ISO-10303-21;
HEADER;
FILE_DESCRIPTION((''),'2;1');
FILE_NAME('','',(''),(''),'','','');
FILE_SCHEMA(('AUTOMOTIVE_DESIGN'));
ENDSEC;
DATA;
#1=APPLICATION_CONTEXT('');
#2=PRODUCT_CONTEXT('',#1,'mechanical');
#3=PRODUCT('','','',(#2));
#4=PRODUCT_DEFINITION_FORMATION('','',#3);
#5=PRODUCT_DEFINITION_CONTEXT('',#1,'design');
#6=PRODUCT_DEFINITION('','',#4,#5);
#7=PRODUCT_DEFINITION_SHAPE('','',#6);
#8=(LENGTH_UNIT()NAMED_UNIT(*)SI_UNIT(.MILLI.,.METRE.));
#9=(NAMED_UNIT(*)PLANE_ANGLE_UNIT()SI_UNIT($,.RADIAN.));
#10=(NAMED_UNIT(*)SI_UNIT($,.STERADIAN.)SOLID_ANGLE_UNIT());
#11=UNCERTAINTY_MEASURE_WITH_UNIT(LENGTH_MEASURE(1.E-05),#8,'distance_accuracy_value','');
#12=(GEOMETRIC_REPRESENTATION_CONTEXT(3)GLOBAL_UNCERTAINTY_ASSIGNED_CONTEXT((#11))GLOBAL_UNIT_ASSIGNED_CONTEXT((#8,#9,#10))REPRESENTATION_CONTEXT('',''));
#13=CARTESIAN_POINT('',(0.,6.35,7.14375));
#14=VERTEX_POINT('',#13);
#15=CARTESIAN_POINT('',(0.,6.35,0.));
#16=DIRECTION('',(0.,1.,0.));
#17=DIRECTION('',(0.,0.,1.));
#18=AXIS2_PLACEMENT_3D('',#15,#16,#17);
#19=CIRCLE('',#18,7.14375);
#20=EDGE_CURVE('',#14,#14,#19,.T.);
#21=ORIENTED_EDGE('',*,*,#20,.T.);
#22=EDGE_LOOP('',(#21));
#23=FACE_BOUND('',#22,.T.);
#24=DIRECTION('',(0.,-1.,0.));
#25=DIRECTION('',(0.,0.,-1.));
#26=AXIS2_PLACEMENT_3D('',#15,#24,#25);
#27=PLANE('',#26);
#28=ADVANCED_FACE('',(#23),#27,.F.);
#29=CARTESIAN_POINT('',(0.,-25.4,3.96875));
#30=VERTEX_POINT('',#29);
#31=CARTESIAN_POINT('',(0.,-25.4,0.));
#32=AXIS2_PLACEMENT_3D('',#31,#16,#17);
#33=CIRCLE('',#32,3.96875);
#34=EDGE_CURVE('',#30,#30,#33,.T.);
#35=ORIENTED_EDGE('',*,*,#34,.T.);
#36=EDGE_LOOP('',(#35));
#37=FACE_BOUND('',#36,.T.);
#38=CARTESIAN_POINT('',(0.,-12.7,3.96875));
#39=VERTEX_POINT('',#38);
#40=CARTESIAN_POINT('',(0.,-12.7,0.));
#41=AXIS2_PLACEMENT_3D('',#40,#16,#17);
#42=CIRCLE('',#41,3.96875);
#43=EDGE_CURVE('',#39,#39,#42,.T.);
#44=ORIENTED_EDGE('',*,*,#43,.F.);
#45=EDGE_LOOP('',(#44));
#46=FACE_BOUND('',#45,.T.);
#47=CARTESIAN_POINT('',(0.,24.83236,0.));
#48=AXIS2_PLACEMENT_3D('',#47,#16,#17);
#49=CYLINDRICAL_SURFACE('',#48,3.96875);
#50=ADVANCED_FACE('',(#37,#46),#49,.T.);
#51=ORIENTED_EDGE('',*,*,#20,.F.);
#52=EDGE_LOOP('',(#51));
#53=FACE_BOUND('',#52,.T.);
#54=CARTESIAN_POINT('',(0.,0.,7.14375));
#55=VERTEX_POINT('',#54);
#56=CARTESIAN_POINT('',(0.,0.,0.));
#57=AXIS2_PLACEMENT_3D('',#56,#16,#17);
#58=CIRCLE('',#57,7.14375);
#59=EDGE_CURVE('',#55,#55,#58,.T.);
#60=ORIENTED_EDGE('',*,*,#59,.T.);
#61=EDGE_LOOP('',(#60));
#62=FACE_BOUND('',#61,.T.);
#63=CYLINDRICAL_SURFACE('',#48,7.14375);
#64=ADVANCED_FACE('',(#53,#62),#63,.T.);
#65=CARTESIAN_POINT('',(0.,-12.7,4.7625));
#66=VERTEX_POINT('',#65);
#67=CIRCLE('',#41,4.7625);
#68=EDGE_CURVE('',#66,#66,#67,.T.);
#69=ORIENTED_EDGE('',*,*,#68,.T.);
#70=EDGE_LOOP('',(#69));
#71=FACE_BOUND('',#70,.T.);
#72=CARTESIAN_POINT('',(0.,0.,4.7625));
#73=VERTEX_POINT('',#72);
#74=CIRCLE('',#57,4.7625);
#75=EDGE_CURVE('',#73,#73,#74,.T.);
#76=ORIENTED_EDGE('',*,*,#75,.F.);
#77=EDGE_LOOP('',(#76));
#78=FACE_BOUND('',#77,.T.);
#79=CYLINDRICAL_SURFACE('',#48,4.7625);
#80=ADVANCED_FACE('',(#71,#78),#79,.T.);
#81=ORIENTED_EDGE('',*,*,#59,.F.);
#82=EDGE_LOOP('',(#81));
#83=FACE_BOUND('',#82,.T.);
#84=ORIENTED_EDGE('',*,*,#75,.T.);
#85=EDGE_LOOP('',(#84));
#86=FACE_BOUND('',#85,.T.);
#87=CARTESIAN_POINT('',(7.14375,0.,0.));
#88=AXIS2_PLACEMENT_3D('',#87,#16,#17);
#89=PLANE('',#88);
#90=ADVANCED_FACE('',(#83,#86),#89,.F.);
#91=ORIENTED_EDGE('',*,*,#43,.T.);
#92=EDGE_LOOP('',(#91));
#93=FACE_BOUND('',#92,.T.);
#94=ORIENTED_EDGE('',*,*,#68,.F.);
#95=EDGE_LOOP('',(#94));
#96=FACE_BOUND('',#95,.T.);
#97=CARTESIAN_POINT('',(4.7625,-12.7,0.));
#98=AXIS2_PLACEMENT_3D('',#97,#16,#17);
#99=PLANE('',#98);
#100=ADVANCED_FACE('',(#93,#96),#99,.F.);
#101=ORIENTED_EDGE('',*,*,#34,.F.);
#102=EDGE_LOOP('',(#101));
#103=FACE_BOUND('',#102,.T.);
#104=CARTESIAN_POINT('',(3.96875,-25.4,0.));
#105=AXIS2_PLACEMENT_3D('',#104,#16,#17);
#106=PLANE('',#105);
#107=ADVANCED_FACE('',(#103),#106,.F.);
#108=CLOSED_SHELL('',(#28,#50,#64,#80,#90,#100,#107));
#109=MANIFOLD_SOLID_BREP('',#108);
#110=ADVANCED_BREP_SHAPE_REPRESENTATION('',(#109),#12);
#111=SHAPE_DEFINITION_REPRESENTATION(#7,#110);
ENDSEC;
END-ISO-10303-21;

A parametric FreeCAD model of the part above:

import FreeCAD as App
import Part
import Sketcher
from FreeCAD import Vector
Q = App.Units.Quantity


def add_polygon(sketch, points):
    """Adds a closed chain of lines whose ends are joined by coincident constraints."""
    first, n = sketch.GeometryCount, len(points)
    for a, b in zip(points, points[1:] + points[:1]):
        sketch.addGeometry(Part.LineSegment(App.Vector(*a, 0), App.Vector(*b, 0)), False)
    for i in range(n):
        sketch.addConstraint(Sketcher.Constraint("Coincident", first + i, 2, first + (i + 1) % n, 1))

doc = App.newDocument("Part")
params = doc.addObject("Spreadsheet::Sheet", "Params")
for row, (alias, value) in enumerate([
    ("sketch1_height", "0.5 in"),
    ("sketch1_height2", "1.25 in"),
    ("sketch1_width", "0.28125 in"),
    ("sketch1_width2", "0.15625 in"),
    ("sketch1_width3", "0.03125 in"),
    ("revolution_angle", "360 deg"),
], start=1):
    params.set(f"A{row}", alias)
    params.set(f"B{row}", "=" + value)
    params.setAlias(f"B{row}", alias)

body = doc.addObject("PartDesign::Body", "Body")

# Sketch on XY plane
sketch1 = body.newObject("Sketcher::SketchObject", "Sketch")
sketch1.AttachmentSupport = (doc.getObject("XY_Plane"), [""])
sketch1.MapMode = "FlatFace"
add_polygon(sketch1, [(7.14375, 6.35), (0, 6.35), (0, -25.4), (3.96875, -25.4), (3.96875, -12.7), (4.7625, -12.7), (4.7625, 0), (7.14375, 0)])  # lines 0-7
sketch1.addConstraint([
    Sketcher.Constraint("Horizontal", 0),
    Sketcher.Constraint("Vertical", 1),
    Sketcher.Constraint("Horizontal", 2),
    Sketcher.Constraint("Vertical", 3),
    Sketcher.Constraint("Horizontal", 4),
    Sketcher.Constraint("Vertical", 5),
    Sketcher.Constraint("Horizontal", 6),
    Sketcher.Constraint("Vertical", 7),
    Sketcher.Constraint("PointOnObject", 0, 2, -2),
    Sketcher.Constraint("PointOnObject", 5, 2, -1),
    Sketcher.Constraint("Equal", 3, 5),
    Sketcher.Constraint("DistanceY", 3, 1, 3, 2, Q("0.5 in")),
    Sketcher.Constraint("DistanceY", 1, 2, 1, 1, Q("1.25 in")),
    Sketcher.Constraint("DistanceX", 0, 2, 0, 1, Q("0.28125 in")),
    Sketcher.Constraint("DistanceX", 2, 1, 2, 2, Q("0.15625 in")),
    Sketcher.Constraint("DistanceX", 4, 1, 4, 2, Q("0.03125 in")),
])
sketch1.setExpression("Constraints[19]", "Params.sketch1_height")
sketch1.setExpression("Constraints[20]", "Params.sketch1_height2")
sketch1.setExpression("Constraints[21]", "Params.sketch1_width")
sketch1.setExpression("Constraints[22]", "Params.sketch1_width2")
sketch1.setExpression("Constraints[23]", "Params.sketch1_width3")
revolution = body.newObject("PartDesign::Revolution", "Revolution")
revolution.Profile = sketch1
revolution.ReferenceAxis = (sketch1, ["V_Axis"])
revolution.setExpression("Angle", "Params.revolution_angle")

doc.recompute()
